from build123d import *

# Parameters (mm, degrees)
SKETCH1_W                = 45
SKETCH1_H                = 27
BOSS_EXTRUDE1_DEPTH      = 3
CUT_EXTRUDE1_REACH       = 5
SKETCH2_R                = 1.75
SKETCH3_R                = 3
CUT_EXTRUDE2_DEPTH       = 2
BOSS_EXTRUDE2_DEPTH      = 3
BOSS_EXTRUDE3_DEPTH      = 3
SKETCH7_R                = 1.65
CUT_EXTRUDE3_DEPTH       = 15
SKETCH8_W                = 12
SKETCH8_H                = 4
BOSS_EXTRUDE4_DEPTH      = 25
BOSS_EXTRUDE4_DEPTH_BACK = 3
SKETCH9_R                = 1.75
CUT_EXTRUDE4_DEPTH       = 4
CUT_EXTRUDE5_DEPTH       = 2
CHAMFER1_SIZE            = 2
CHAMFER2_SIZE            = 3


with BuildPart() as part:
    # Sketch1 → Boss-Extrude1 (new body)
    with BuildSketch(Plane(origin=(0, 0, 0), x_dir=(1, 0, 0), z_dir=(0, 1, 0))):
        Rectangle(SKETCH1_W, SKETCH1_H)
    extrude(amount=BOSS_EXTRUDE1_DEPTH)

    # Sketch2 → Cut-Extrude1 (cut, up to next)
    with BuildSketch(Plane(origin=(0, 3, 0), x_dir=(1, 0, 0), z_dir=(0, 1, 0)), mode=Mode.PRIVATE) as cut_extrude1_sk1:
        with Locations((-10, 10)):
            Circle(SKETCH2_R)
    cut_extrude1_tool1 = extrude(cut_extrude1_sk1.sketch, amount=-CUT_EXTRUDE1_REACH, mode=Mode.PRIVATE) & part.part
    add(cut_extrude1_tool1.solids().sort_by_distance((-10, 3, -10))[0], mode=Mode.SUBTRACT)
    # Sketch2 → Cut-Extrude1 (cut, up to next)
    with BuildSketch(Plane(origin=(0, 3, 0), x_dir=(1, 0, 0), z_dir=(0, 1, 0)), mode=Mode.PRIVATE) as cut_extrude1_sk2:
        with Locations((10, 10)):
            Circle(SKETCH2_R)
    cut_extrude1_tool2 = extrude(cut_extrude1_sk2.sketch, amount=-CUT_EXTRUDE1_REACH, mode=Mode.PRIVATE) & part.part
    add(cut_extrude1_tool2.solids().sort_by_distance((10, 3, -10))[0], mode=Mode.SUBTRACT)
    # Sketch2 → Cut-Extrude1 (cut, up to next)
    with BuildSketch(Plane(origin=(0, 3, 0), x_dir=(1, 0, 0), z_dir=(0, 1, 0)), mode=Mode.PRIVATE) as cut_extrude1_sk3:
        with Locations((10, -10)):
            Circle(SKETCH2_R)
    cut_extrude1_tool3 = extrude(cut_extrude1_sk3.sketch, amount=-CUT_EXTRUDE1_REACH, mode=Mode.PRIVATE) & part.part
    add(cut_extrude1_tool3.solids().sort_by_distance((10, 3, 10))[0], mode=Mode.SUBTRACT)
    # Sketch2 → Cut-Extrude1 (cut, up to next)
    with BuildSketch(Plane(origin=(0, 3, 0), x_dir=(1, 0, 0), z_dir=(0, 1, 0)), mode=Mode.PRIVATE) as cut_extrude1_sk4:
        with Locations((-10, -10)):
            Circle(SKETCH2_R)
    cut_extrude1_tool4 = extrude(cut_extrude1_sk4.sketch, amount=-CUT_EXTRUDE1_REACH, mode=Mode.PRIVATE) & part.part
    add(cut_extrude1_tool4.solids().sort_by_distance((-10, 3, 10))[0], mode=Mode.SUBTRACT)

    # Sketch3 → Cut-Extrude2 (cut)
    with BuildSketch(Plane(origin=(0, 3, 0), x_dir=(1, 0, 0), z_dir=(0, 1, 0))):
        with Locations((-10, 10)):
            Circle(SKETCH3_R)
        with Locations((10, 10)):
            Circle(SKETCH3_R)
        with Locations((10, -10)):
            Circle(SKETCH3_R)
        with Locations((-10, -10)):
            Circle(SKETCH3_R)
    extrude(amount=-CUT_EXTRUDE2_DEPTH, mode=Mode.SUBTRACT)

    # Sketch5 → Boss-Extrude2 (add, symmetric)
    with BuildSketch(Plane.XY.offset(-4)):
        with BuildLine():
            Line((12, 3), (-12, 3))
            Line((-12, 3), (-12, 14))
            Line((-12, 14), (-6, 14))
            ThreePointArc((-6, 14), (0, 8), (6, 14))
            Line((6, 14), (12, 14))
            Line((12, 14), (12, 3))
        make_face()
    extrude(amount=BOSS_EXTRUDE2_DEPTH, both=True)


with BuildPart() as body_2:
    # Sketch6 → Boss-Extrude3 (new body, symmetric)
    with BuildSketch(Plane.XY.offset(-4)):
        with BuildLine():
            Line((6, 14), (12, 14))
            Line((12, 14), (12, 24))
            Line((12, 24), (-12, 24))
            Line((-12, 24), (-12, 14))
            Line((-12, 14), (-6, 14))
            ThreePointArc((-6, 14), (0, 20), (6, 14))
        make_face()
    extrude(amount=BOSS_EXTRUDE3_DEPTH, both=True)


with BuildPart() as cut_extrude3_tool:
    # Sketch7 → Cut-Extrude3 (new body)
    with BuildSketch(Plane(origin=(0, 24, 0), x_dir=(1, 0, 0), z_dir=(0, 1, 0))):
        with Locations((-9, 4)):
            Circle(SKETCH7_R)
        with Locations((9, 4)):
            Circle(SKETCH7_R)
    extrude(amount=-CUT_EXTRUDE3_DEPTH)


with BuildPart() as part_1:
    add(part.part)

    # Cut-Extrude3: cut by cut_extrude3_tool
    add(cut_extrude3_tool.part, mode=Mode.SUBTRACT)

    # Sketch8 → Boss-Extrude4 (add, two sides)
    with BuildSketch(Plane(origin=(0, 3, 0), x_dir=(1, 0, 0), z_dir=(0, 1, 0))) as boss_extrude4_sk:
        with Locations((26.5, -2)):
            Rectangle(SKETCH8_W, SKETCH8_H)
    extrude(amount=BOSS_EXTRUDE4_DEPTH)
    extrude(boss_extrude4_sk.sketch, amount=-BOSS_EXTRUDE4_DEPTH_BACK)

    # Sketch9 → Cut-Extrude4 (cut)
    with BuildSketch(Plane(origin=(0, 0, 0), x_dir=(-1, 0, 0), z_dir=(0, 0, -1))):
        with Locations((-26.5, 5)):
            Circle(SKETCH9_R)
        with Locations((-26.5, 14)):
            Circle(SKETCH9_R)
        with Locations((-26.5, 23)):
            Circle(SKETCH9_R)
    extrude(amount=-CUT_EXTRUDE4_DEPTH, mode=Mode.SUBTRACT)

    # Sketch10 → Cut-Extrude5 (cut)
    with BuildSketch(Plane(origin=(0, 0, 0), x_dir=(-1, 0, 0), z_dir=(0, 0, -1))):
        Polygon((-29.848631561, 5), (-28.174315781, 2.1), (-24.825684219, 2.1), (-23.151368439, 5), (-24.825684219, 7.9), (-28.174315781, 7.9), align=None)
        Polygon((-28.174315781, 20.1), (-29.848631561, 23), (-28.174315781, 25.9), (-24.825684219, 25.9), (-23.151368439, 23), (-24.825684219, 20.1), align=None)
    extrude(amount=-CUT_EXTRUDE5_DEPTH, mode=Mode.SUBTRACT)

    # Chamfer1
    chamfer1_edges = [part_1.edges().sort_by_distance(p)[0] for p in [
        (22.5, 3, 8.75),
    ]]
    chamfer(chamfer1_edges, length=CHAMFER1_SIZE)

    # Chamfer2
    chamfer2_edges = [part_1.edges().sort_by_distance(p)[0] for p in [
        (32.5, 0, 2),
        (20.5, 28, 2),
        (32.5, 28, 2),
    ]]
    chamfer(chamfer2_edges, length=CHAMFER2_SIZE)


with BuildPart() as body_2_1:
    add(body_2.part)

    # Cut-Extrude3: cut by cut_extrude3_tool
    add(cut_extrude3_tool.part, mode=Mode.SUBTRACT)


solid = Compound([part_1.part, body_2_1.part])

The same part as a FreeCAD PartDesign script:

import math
import FreeCAD as App
import Part
import Sketcher
Q = App.Units.Quantity


def edges_at(feature, points):
    """Names of the edges that pass closest to the given points."""
    edges = feature.Shape.Edges
    near = lambda p: min(range(len(edges)), key=lambda i: edges[i].distToShape(Part.Vertex(*p))[0])
    return sorted({f"Edge{near(p) + 1}" for p in points})

doc = App.newDocument("Part")
body = doc.addObject("PartDesign::Body", "Body")

# Sketch on XZ plane
sketch1 = body.newObject("Sketcher::SketchObject", "Sketch")
sketch1.AttachmentSupport = (doc.getObject("XZ_Plane"), [""])
sketch1.MapMode = "FlatFace"
sketch1.addGeometry([
    Part.LineSegment(App.Vector(-22, -14, 0), App.Vector(-22, 14, 0)),
    Part.LineSegment(App.Vector(-22, 14, 0), App.Vector(22, 14, 0)),
    Part.LineSegment(App.Vector(22, 14, 0), App.Vector(22, -14, 0)),
    Part.LineSegment(App.Vector(22, -14, 0), App.Vector(-22, -14, 0)),
], False)
sketch1.addConstraint([
    Sketcher.Constraint("Coincident", 0, 2, 1, 1),
    Sketcher.Constraint("Coincident", 1, 2, 2, 1),
    Sketcher.Constraint("Coincident", 2, 2, 3, 1),
    Sketcher.Constraint("Coincident", 3, 2, 0, 1),
    Sketcher.Constraint("Vertical", 0),
    Sketcher.Constraint("Horizontal", 1),
    Sketcher.Constraint("Vertical", 2),
    Sketcher.Constraint("Horizontal", 3),
    Sketcher.Constraint("Symmetric", 0, 2, 2, 2, -1, 1),
    Sketcher.Constraint("DistanceX", 1, 1, 1, 2, Q("45 mm")),
    Sketcher.Constraint("DistanceY", 0, 1, 0, 2, Q("27 mm")),
])
pad1 = body.newObject("PartDesign::Pad", "Pad")
pad1.Profile = sketch1
pad1.Length = 3
pad1.Reversed = True

# Sketch on XZ plane
sketch2 = body.newObject("Sketcher::SketchObject", "Sketch001")
sketch2.AttachmentSupport = (doc.getObject("XZ_Plane"), [""])
sketch2.MapMode = "FlatFace"
sketch2.AttachmentOffset = App.Placement(App.Vector(0, 0, -3), App.Rotation())
sketch2.addGeometry(Part.Circle(App.Vector(-10, -10, 0), App.Vector(0, 0, 1), 1.8), False)
sketch2.addConstraint([
    Sketcher.Constraint("Diameter", 0, Q("3.5 mm")),
    Sketcher.Constraint("DistanceX", 0, 3, -1, 1, Q("10 mm")),
    Sketcher.Constraint("DistanceY", 0, 3, -1, 1, Q("10 mm")),
])
pocket1 = body.newObject("PartDesign::Pocket", "Pocket")
pocket1.Profile = sketch2
pocket1.Type = "UpToFirst"
pocket1.Reversed = True

# Sketch on XZ plane
sketch3 = body.newObject("Sketcher::SketchObject", "Sketch002")
sketch3.AttachmentSupport = (doc.getObject("XZ_Plane"), [""])
sketch3.MapMode = "FlatFace"
sketch3.AttachmentOffset = App.Placement(App.Vector(0, 0, -3), App.Rotation())
sketch3.addGeometry(Part.Circle(App.Vector(10, -10, 0), App.Vector(0, 0, 1), 1.8), False)
sketch3.addConstraint([
    Sketcher.Constraint("Diameter", 0, Q("3.5 mm")),
    Sketcher.Constraint("DistanceX", -1, 1, 0, 3, Q("10 mm")),
    Sketcher.Constraint("DistanceY", 0, 3, -1, 1, Q("10 mm")),
])
pocket2 = body.newObject("PartDesign::Pocket", "Pocket001")
pocket2.Profile = sketch3
pocket2.Type = "UpToFirst"
pocket2.Reversed = True

# Sketch on XZ plane
sketch4 = body.newObject("Sketcher::SketchObject", "Sketch003")
sketch4.AttachmentSupport = (doc.getObject("XZ_Plane"), [""])
sketch4.MapMode = "FlatFace"
sketch4.AttachmentOffset = App.Placement(App.Vector(0, 0, -3), App.Rotation())
sketch4.addGeometry(Part.Circle(App.Vector(10, 10, 0), App.Vector(0, 0, 1), 1.8), False)
sketch4.addConstraint([
    Sketcher.Constraint("Diameter", 0, Q("3.5 mm")),
    Sketcher.Constraint("DistanceX", -1, 1, 0, 3, Q("10 mm")),
    Sketcher.Constraint("DistanceY", -1, 1, 0, 3, Q("10 mm")),
])
pocket3 = body.newObject("PartDesign::Pocket", "Pocket002")
pocket3.Profile = sketch4
pocket3.Type = "UpToFirst"
pocket3.Reversed = True

# Sketch on XZ plane
sketch5 = body.newObject("Sketcher::SketchObject", "Sketch004")
sketch5.AttachmentSupport = (doc.getObject("XZ_Plane"), [""])
sketch5.MapMode = "FlatFace"
sketch5.AttachmentOffset = App.Placement(App.Vector(0, 0, -3), App.Rotation())
sketch5.addGeometry(Part.Circle(App.Vector(-10, 10, 0), App.Vector(0, 0, 1), 1.8), False)
sketch5.addConstraint([
    Sketcher.Constraint("Diameter", 0, Q("3.5 mm")),
    Sketcher.Constraint("DistanceX", 0, 3, -1, 1, Q("10 mm")),
    Sketcher.Constraint("DistanceY", -1, 1, 0, 3, Q("10 mm")),
])
pocket4 = body.newObject("PartDesign::Pocket", "Pocket003")
pocket4.Profile = sketch5
pocket4.Type = "UpToFirst"
pocket4.Reversed = True

# Sketch on XZ plane
sketch6 = body.newObject("Sketcher::SketchObject", "Sketch005")
sketch6.AttachmentSupport = (doc.getObject("XZ_Plane"), [""])
sketch6.MapMode = "FlatFace"
sketch6.AttachmentOffset = App.Placement(App.Vector(0, 0, -3), App.Rotation())
sketch6.addGeometry([
    Part.Circle(App.Vector(-10, -10, 0), App.Vector(0, 0, 1), 3),
    Part.Circle(App.Vector(10, -10, 0), App.Vector(0, 0, 1), 3),
    Part.Circle(App.Vector(10, 10, 0), App.Vector(0, 0, 1), 3),
    Part.Circle(App.Vector(-10, 10, 0), App.Vector(0, 0, 1), 3),
], False)
sketch6.addConstraint([
    Sketcher.Constraint("Equal", 0, 1),
    Sketcher.Constraint("Equal", 1, 2),
    Sketcher.Constraint("Equal", 2, 3),
    Sketcher.Constraint("Symmetric", 0, 3, 2, 3, -1, 1),
    Sketcher.Constraint("Symmetric", 1, 3, 3, 3, -1, 1),
    Sketcher.Constraint("Symmetric", 0, 3, 1, 3, -2),
    Sketcher.Constraint("Diameter", 0, Q("6 mm")),
    Sketcher.Constraint("DistanceX", 0, 3, -1, 1, Q("10 mm")),
    Sketcher.Constraint("DistanceY", 0, 3, -1, 1, Q("10 mm")),
])
pocket5 = body.newObject("PartDesign::Pocket", "Pocket004")
pocket5.Profile = sketch6
pocket5.Length = 2
pocket5.Reversed = True

# Sketch on XY plane
sketch7 = body.newObject("Sketcher::SketchObject", "Sketch006")
sketch7.AttachmentSupport = (doc.getObject("XY_Plane"), [""])
sketch7.MapMode = "FlatFace"
sketch7.AttachmentOffset = App.Placement(App.Vector(0, 0, -4), App.Rotation())
sketch7.addGeometry([
    Part.LineSegment(App.Vector(-12, 3, 0), App.Vector(12, 3, 0)),  # 0
    Part.LineSegment(App.Vector(12, 3, 0), App.Vector(12, 14, 0)),  # 1
    Part.LineSegment(App.Vector(12, 14, 0), App.Vector(6, 14, 0)),  # 2
    Part.ArcOfCircle(Part.Circle(App.Vector(0, 14, 0), App.Vector(0, 0, 1), 6), math.radians(180), math.radians(360)),  # 3
    Part.LineSegment(App.Vector(-6, 14, 0), App.Vector(-12, 14, 0)),  # 4
    Part.LineSegment(App.Vector(-12, 14, 0), App.Vector(-12, 3, 0)),  # 5
], False)
sketch7.addConstraint([
    Sketcher.Constraint("Coincident", 0, 2, 1, 1),
    Sketcher.Constraint("Coincident", 1, 2, 2, 1),
    Sketcher.Constraint("Coincident", 2, 2, 3, 2),
    Sketcher.Constraint("Coincident", 3, 1, 4, 1),
    Sketcher.Constraint("Coincident", 4, 2, 5, 1),
    Sketcher.Constraint("Coincident", 5, 2, 0, 1),
    Sketcher.Constraint("Horizontal", 0),
    Sketcher.Constraint("Vertical", 1),
    Sketcher.Constraint("Horizontal", 2),
    Sketcher.Constraint("Horizontal", 4),
    Sketcher.Constraint("Vertical", 5),
    Sketcher.Constraint("Symmetric", 2, 2, 3, 1, -2),
    Sketcher.Constraint("Horizontal", 3, 3, 1, 2),
    Sketcher.Constraint("Equal", 2, 4),
    Sketcher.Constraint("Radius", 3, Q("6 mm")),
    Sketcher.Constraint("DistanceX", 0, 1, 0, 2, Q("24 mm")),
    Sketcher.Constraint("DistanceY", 1, 1, 1, 2, Q("11 mm")),
    Sketcher.Constraint("DistanceY", -1, 1, 3, 3, Q("14 mm")),
])
pad2 = body.newObject("PartDesign::Pad", "Pad001")
pad2.Profile = sketch7
pad2.Length = 6
pad2.Midplane = True
body2 = doc.addObject("PartDesign::Body", "Body001")

# Sketch on XY plane
sketch8 = body2.newObject("Sketcher::SketchObject", "Sketch007")
sketch8.AttachmentSupport = (doc.getObject("XY_Plane001"), [""])
sketch8.MapMode = "FlatFace"
sketch8.AttachmentOffset = App.Placement(App.Vector(0, 0, -4), App.Rotation())
sketch8.addGeometry([
    Part.LineSegment(App.Vector(6, 14, 0), App.Vector(12, 14, 0)),  # 0
    Part.LineSegment(App.Vector(12, 14, 0), App.Vector(12, 24, 0)),  # 1
    Part.LineSegment(App.Vector(12, 24, 0), App.Vector(-12, 24, 0)),  # 2
    Part.LineSegment(App.Vector(-12, 24, 0), App.Vector(-12, 14, 0)),  # 3
    Part.LineSegment(App.Vector(-12, 14, 0), App.Vector(-6, 14, 0)),  # 4
    Part.ArcOfCircle(Part.Circle(App.Vector(0, 14, 0), App.Vector(0, 0, 1), 6), math.radians(0), math.radians(180)),  # 5
], False)
sketch8.addConstraint([
    Sketcher.Constraint("Coincident", 0, 2, 1, 1),
    Sketcher.Constraint("Coincident", 1, 2, 2, 1),
    Sketcher.Constraint("Coincident", 2, 2, 3, 1),
    Sketcher.Constraint("Coincident", 3, 2, 4, 1),
    Sketcher.Constraint("Coincident", 4, 2, 5, 2),
    Sketcher.Constraint("Coincident", 5, 1, 0, 1),
    Sketcher.Constraint("Horizontal", 0),
    Sketcher.Constraint("Vertical", 1),
    Sketcher.Constraint("Horizontal", 2),
    Sketcher.Constraint("Vertical", 3),
    Sketcher.Constraint("Horizontal", 4),
    Sketcher.Constraint("Symmetric", 0, 2, 3, 2, -2),
    Sketcher.Constraint("PointOnObject", 5, 3, -2),
    Sketcher.Constraint("Horizontal", 5, 3, 0, 2),
    Sketcher.Constraint("Radius", 5, Q("6 mm")),
    Sketcher.Constraint("DistanceX", 0, 1, 0, 2, Q("6 mm")),
    Sketcher.Constraint("DistanceY", 1, 1, 1, 2, Q("10 mm")),
    Sketcher.Constraint("DistanceY", -1, 1, 5, 3, Q("14 mm")),
])
pad3 = body2.newObject("PartDesign::Pad", "Pad002")
pad3.Profile = sketch8
pad3.Length = 6
pad3.Midplane = True
body3 = doc.addObject("PartDesign::Body", "Body002")
body3.AllowCompound = True

# Sketch on XZ plane
sketch9 = body3.newObject("Sketcher::SketchObject", "Sketch008")
sketch9.AttachmentSupport = (doc.getObject("XZ_Plane002"), [""])
sketch9.MapMode = "FlatFace"
sketch9.AttachmentOffset = App.Placement(App.Vector(0, 0, -24), App.Rotation())
sketch9.addGeometry([
    Part.Circle(App.Vector(-9, -4, 0), App.Vector(0, 0, 1), 1.6),
    Part.Circle(App.Vector(9, -4, 0), App.Vector(0, 0, 1), 1.6),
], False)
sketch9.addConstraint([
    Sketcher.Constraint("Equal", 0, 1),
    Sketcher.Constraint("Symmetric", 0, 3, 1, 3, -2),
    Sketcher.Constraint("Diameter", 0, Q("3.3 mm")),
    Sketcher.Constraint("DistanceX", 0, 3, -1, 1, Q("9 mm")),
    Sketcher.Constraint("DistanceY", 0, 3, -1, 1, Q("4 mm")),
])
pad4 = body3.newObject("PartDesign::Pad", "Pad003")
pad4.Profile = sketch9
pad4.Length = 15
doc.recompute()

body4 = doc.addObject("PartDesign::Body", "Body003")
body4.BaseFeature = body3
boolean = body.newObject("PartDesign::Boolean", "Boolean")
boolean.Type = "Cut"
boolean.addObjects([body4])
doc.recompute()

# Sketch on XZ plane
sketch10 = body.newObject("Sketcher::SketchObject", "Sketch009")
sketch10.AttachmentSupport = (doc.getObject("XZ_Plane"), [""])
sketch10.MapMode = "FlatFace"
sketch10.AttachmentOffset = App.Placement(App.Vector(0, 0, -3), App.Rotation())
sketch10.addGeometry([
    Part.LineSegment(App.Vector(20.5, 0, 0), App.Vector(20.5, 4, 0)),
    Part.LineSegment(App.Vector(20.5, 4, 0), App.Vector(32.5, 4, 0)),
    Part.LineSegment(App.Vector(32.5, 4, 0), App.Vector(32.5, 0, 0)),
    Part.LineSegment(App.Vector(32.5, 0, 0), App.Vector(20.5, 0, 0)),
], False)
sketch10.addConstraint([
    Sketcher.Constraint("Coincident", 0, 2, 1, 1),
    Sketcher.Constraint("Coincident", 1, 2, 2, 1),
    Sketcher.Constraint("Coincident", 2, 2, 3, 1),
    Sketcher.Constraint("Coincident", 3, 2, 0, 1),
    Sketcher.Constraint("Vertical", 0),
    Sketcher.Constraint("Horizontal", 1),
    Sketcher.Constraint("Vertical", 2),
    Sketcher.Constraint("Horizontal", 3),
    Sketcher.Constraint("PointOnObject", 2, 2, -1),
    Sketcher.Constraint("DistanceX", 1, 1, 1, 2, Q("12 mm")),
    Sketcher.Constraint("DistanceY", 0, 1, 0, 2, Q("4 mm")),
    Sketcher.Constraint("DistanceX", -1, 1, 0, 2, Q("20.5 mm")),
])
pad5 = body.newObject("PartDesign::Pad", "Pad004")
pad5.Profile = sketch10
pad5.Type = "TwoLengths"
pad5.Length = 25
pad5.Length2 = 3
pad5.Reversed = True

# Sketch on XY plane
sketch11 = body.newObject("Sketcher::SketchObject", "Sketch010")
sketch11.AttachmentSupport = (doc.getObject("XY_Plane"), [""])
sketch11.MapMode = "FlatFace"
sketch11.addGeometry([
    Part.Circle(App.Vector(26.5, 5, 0), App.Vector(0, 0, 1), 1.8),
    Part.Circle(App.Vector(26.5, 14, 0), App.Vector(0, 0, 1), 1.8),
    Part.Circle(App.Vector(26.5, 23, 0), App.Vector(0, 0, 1), 1.8),
], False)
sketch11.addConstraint([
    Sketcher.Constraint("Equal", 0, 1),
    Sketcher.Constraint("Equal", 1, 2),
    Sketcher.Constraint("Vertical", 0, 3, 1, 3),
    Sketcher.Constraint("Vertical", 1, 3, 2, 3),
    Sketcher.Constraint("Diameter", 0, Q("3.5 mm")),
    Sketcher.Constraint("DistanceY", -1, 1, 0, 3, Q("5 mm")),
    Sketcher.Constraint("DistanceY", -1, 1, 1, 3, Q("14 mm")),
    Sketcher.Constraint("DistanceY", -1, 1, 2, 3, Q("23 mm")),
    Sketcher.Constraint("DistanceX", -1, 1, 0, 3, Q("26.5 mm")),
])
pocket6 = body.newObject("PartDesign::Pocket", "Pocket005")
pocket6.Profile = sketch11
pocket6.Length = 4
pocket6.Reversed = True

# Sketch on XY plane
sketch12 = body.newObject("Sketcher::SketchObject", "Sketch011")
sketch12.AttachmentSupport = (doc.getObject("XY_Plane"), [""])
sketch12.MapMode = "FlatFace"
sketch12.addGeometry([
    Part.LineSegment(App.Vector(29.8, 5, 0), App.Vector(28.2, 2.1, 0)),  # 0
    Part.LineSegment(App.Vector(28.2, 2.1, 0), App.Vector(24.8, 2.1, 0)),  # 1
    Part.LineSegment(App.Vector(24.8, 2.1, 0), App.Vector(23.2, 5, 0)),  # 2
    Part.LineSegment(App.Vector(23.2, 5, 0), App.Vector(24.8, 7.9, 0)),  # 3
    Part.LineSegment(App.Vector(24.8, 7.9, 0), App.Vector(28.2, 7.9, 0)),  # 4
    Part.LineSegment(App.Vector(28.2, 7.9, 0), App.Vector(29.8, 5, 0)),  # 5
    Part.LineSegment(App.Vector(29.8, 23, 0), App.Vector(28.2, 20.1, 0)),  # 6
    Part.LineSegment(App.Vector(28.2, 20.1, 0), App.Vector(24.8, 20.1, 0)),  # 7
    Part.LineSegment(App.Vector(24.8, 20.1, 0), App.Vector(23.2, 23, 0)),  # 8
    Part.LineSegment(App.Vector(23.2, 23, 0), App.Vector(24.8, 25.9, 0)),  # 9
    Part.LineSegment(App.Vector(24.8, 25.9, 0), App.Vector(28.2, 25.9, 0)),  # 10
    Part.LineSegment(App.Vector(28.2, 25.9, 0), App.Vector(29.8, 23, 0)),  # 11
], False)
sketch12.addConstraint([
    Sketcher.Constraint("Coincident", 0, 2, 1, 1),
    Sketcher.Constraint("Coincident", 1, 2, 2, 1),
    Sketcher.Constraint("Coincident", 2, 2, 3, 1),
    Sketcher.Constraint("Coincident", 3, 2, 4, 1),
    Sketcher.Constraint("Coincident", 4, 2, 5, 1),
    Sketcher.Constraint("Coincident", 5, 2, 0, 1),
    Sketcher.Constraint("Coincident", 6, 2, 7, 1),
    Sketcher.Constraint("Coincident", 7, 2, 8, 1),
    Sketcher.Constraint("Coincident", 8, 2, 9, 1),
    Sketcher.Constraint("Coincident", 9, 2, 10, 1),
    Sketcher.Constraint("Coincident", 10, 2, 11, 1),
    Sketcher.Constraint("Coincident", 11, 2, 6, 1),
    Sketcher.Constraint("Horizontal", 1),
    Sketcher.Constraint("Horizontal", 4),
    Sketcher.Constraint("Horizontal", 7),
    Sketcher.Constraint("Horizontal", 10),
    Sketcher.Constraint("Parallel", 0, 3),
    Sketcher.Constraint("Parallel", 2, 5),
    Sketcher.Constraint("Parallel", 3, 6),
    Sketcher.Constraint("Parallel", 5, 8),
    Sketcher.Constraint("Parallel", 6, 9),
    Sketcher.Constraint("Parallel", 8, 11),
    Sketcher.Constraint("Horizontal", 2, 2, 5, 2),
    Sketcher.Constraint("Horizontal", 8, 2, 11, 2),
    Sketcher.Constraint("Vertical", 1, 2, 3, 2),
    Sketcher.Constraint("Vertical", 0, 2, 4, 2),
    Sketcher.Constraint("Vertical", 4, 2, 6, 2),
    Sketcher.Constraint("Vertical", 3, 2, 7, 2),
    Sketcher.Constraint("Vertical", 2, 2, 8, 2),
    Sketcher.Constraint("Vertical", 7, 2, 9, 2),
    Sketcher.Constraint("Angle", 0, Q("-120 deg")),
    Sketcher.Constraint("DistanceY", -1, 1, 2, 2, Q("5 mm")),
    Sketcher.Constraint("DistanceY", -1, 1, 8, 2, Q("23 mm")),
    Sketcher.Constraint("DistanceY", -1, 1, 0, 2, Q("2.1 mm")),
    Sketcher.Constraint("DistanceX", 1, 2, 1, 1, Q("3.348632 mm")),
    Sketcher.Constraint("DistanceX", -1, 1, 2, 2, Q("23.151368 mm")),
])
pocket7 = body.newObject("PartDesign::Pocket", "Pocket006")
pocket7.Profile = sketch12
pocket7.Length = 2
pocket7.Reversed = True
doc.recompute()

chamfer = body.newObject("PartDesign::Chamfer", "Chamfer")
chamfer.Base = (pocket7, edges_at(pocket7, [(22.5, 3, 8.75)]))
chamfer.Size = 2
doc.recompute()

chamfer2 = body.newObject("PartDesign::Chamfer", "Chamfer001")
chamfer2.Base = (chamfer, edges_at(chamfer, [(32.5, 0, 2), (20.5, 28, 2), (32.5, 28, 2)]))
chamfer2.Size = 3
doc.recompute()

boolean2 = body2.newObject("PartDesign::Boolean", "Boolean001")
boolean2.Type = "Cut"
boolean2.addObjects([body3])

doc.recompute()
